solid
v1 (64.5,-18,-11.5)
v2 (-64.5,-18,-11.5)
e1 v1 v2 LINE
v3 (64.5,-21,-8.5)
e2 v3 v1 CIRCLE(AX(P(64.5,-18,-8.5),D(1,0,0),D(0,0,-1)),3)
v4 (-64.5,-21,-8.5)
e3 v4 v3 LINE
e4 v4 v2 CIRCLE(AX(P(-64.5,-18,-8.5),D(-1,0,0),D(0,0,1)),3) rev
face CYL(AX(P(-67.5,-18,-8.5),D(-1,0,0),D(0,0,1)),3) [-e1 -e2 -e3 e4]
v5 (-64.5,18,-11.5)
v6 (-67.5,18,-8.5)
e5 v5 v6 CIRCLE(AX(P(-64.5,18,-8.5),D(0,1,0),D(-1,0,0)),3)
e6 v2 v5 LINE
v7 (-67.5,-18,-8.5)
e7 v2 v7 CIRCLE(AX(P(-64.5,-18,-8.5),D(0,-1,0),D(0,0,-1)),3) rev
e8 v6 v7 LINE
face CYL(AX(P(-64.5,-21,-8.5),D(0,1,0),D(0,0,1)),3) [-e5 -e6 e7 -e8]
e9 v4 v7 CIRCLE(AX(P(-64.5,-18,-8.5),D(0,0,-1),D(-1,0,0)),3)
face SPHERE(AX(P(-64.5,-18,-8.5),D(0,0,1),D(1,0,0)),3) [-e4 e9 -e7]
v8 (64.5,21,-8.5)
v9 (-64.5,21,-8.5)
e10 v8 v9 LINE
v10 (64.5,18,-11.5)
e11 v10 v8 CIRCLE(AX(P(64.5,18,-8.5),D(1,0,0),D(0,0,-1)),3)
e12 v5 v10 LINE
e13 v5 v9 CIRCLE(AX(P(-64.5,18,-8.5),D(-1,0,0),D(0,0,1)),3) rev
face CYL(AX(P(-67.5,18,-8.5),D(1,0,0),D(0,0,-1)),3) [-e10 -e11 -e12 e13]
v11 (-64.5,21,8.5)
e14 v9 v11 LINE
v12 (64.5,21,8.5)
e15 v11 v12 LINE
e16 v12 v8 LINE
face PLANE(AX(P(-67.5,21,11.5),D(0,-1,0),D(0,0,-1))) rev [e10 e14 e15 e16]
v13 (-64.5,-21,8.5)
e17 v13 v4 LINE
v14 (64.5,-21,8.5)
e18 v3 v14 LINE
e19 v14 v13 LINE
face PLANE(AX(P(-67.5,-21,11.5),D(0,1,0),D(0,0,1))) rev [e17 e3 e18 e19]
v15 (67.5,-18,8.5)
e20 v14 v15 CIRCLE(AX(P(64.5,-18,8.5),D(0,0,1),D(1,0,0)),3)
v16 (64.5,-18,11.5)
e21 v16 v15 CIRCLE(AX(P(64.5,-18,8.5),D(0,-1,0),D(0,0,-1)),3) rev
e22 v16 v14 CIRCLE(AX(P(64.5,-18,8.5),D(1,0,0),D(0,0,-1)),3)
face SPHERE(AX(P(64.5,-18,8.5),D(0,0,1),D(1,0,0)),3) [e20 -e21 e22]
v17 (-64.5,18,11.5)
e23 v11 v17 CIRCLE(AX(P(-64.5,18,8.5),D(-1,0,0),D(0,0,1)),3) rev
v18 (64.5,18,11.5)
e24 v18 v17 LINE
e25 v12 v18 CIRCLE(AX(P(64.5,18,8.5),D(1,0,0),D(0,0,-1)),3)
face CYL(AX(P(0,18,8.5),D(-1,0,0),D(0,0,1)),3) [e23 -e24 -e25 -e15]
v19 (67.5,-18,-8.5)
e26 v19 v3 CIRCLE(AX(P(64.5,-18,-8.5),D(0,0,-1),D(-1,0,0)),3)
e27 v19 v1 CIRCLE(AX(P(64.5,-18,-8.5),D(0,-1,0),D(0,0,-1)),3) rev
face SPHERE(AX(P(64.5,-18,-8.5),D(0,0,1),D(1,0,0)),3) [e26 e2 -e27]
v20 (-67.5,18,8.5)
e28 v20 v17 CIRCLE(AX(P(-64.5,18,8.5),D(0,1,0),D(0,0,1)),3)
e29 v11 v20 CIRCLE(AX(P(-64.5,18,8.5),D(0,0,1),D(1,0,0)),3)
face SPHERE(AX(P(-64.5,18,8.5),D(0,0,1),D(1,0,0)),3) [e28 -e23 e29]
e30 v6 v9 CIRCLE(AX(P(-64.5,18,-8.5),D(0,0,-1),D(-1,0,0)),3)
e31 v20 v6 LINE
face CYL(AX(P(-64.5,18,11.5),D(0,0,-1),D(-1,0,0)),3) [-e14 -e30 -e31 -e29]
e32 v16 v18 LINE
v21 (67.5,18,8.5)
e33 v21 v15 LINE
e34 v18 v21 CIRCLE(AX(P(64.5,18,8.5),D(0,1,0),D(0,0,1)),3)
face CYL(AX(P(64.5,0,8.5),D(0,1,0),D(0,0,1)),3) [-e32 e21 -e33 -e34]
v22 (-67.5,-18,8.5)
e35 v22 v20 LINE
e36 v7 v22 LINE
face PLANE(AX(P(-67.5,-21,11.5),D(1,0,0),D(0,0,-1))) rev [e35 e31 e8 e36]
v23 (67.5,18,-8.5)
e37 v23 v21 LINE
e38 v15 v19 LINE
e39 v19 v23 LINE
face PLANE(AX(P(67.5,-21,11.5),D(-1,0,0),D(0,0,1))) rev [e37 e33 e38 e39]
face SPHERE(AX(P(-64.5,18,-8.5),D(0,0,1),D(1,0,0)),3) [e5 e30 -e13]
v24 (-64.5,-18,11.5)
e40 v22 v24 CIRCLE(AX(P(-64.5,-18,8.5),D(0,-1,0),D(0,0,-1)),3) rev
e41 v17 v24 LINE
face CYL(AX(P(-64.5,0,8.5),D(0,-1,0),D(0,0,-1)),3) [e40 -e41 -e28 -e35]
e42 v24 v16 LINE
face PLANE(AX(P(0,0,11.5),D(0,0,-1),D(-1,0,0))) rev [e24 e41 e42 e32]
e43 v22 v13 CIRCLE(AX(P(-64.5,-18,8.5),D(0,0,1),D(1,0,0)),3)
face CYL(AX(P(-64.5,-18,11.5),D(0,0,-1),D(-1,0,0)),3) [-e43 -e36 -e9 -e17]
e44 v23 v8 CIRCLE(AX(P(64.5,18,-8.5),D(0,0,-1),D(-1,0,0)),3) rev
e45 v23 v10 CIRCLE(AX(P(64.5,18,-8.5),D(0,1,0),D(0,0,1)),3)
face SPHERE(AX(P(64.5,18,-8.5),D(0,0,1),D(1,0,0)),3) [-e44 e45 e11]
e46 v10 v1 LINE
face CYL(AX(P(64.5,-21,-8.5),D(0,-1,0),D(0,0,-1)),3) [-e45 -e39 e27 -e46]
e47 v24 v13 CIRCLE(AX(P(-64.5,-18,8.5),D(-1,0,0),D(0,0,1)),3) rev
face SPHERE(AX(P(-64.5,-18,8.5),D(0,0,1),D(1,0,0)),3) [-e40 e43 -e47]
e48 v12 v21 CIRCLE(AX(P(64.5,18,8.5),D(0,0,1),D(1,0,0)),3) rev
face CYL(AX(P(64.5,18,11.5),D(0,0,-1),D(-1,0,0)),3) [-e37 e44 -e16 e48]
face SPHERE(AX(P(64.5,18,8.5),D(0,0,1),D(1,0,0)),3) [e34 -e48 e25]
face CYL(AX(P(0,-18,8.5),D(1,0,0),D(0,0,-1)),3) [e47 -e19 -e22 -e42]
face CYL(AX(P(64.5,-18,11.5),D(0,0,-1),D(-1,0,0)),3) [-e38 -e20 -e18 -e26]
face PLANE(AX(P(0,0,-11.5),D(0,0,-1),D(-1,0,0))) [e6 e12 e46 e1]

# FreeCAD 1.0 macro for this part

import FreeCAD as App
import Part
import Sketcher

V = App.Vector


def add_polygon(sketch, points):
    """Adds a closed chain of lines whose ends are joined by coincident constraints."""
    first, n = sketch.GeometryCount, len(points)
    for a, b in zip(points, points[1:] + points[:1]):
        sketch.addGeometry(Part.LineSegment(App.Vector(*a, 0), App.Vector(*b, 0)), False)
    for i in range(n):
        sketch.addConstraint(Sketcher.Constraint("Coincident", first + i, 2, first + (i + 1) % n, 1))

doc = App.newDocument("Part")
body = doc.addObject("PartDesign::Body", "Body")

sketch1 = body.newObject("Sketcher::SketchObject", "Sketch")
sketch1.AttachmentSupport = (doc.getObject("XY_Plane"), [""])
sketch1.MapMode = "FlatFace"
add_polygon(sketch1, [(-68, 21), (-68, -21), (68, -21), (68, 21)])
sketch1.addConstraint([
    Sketcher.Constraint("Vertical", 0),
    Sketcher.Constraint("Horizontal", 1),
    Sketcher.Constraint("Vertical", 2),
    Sketcher.Constraint("Horizontal", 3),
    Sketcher.Constraint("Symmetric", 0, 2, 2, 2, -1, 1),
    Sketcher.Constraint("DistanceX", 1, 1, 1, 2, 135.0),
    Sketcher.Constraint("DistanceY", 0, 2, 0, 1, 42.0),
])
pad1 = body.newObject("PartDesign::Pad", "Pad")
pad1.Profile = sketch1
pad1.Length = 23
pad1.Midplane = True
doc.recompute()

fillet = body.newObject("PartDesign::Fillet", "Fillet")
fillet.Base = (pad1, ["Edge1"])
fillet.UseAllEdges = True
fillet.Radius = 3

doc.recompute()
